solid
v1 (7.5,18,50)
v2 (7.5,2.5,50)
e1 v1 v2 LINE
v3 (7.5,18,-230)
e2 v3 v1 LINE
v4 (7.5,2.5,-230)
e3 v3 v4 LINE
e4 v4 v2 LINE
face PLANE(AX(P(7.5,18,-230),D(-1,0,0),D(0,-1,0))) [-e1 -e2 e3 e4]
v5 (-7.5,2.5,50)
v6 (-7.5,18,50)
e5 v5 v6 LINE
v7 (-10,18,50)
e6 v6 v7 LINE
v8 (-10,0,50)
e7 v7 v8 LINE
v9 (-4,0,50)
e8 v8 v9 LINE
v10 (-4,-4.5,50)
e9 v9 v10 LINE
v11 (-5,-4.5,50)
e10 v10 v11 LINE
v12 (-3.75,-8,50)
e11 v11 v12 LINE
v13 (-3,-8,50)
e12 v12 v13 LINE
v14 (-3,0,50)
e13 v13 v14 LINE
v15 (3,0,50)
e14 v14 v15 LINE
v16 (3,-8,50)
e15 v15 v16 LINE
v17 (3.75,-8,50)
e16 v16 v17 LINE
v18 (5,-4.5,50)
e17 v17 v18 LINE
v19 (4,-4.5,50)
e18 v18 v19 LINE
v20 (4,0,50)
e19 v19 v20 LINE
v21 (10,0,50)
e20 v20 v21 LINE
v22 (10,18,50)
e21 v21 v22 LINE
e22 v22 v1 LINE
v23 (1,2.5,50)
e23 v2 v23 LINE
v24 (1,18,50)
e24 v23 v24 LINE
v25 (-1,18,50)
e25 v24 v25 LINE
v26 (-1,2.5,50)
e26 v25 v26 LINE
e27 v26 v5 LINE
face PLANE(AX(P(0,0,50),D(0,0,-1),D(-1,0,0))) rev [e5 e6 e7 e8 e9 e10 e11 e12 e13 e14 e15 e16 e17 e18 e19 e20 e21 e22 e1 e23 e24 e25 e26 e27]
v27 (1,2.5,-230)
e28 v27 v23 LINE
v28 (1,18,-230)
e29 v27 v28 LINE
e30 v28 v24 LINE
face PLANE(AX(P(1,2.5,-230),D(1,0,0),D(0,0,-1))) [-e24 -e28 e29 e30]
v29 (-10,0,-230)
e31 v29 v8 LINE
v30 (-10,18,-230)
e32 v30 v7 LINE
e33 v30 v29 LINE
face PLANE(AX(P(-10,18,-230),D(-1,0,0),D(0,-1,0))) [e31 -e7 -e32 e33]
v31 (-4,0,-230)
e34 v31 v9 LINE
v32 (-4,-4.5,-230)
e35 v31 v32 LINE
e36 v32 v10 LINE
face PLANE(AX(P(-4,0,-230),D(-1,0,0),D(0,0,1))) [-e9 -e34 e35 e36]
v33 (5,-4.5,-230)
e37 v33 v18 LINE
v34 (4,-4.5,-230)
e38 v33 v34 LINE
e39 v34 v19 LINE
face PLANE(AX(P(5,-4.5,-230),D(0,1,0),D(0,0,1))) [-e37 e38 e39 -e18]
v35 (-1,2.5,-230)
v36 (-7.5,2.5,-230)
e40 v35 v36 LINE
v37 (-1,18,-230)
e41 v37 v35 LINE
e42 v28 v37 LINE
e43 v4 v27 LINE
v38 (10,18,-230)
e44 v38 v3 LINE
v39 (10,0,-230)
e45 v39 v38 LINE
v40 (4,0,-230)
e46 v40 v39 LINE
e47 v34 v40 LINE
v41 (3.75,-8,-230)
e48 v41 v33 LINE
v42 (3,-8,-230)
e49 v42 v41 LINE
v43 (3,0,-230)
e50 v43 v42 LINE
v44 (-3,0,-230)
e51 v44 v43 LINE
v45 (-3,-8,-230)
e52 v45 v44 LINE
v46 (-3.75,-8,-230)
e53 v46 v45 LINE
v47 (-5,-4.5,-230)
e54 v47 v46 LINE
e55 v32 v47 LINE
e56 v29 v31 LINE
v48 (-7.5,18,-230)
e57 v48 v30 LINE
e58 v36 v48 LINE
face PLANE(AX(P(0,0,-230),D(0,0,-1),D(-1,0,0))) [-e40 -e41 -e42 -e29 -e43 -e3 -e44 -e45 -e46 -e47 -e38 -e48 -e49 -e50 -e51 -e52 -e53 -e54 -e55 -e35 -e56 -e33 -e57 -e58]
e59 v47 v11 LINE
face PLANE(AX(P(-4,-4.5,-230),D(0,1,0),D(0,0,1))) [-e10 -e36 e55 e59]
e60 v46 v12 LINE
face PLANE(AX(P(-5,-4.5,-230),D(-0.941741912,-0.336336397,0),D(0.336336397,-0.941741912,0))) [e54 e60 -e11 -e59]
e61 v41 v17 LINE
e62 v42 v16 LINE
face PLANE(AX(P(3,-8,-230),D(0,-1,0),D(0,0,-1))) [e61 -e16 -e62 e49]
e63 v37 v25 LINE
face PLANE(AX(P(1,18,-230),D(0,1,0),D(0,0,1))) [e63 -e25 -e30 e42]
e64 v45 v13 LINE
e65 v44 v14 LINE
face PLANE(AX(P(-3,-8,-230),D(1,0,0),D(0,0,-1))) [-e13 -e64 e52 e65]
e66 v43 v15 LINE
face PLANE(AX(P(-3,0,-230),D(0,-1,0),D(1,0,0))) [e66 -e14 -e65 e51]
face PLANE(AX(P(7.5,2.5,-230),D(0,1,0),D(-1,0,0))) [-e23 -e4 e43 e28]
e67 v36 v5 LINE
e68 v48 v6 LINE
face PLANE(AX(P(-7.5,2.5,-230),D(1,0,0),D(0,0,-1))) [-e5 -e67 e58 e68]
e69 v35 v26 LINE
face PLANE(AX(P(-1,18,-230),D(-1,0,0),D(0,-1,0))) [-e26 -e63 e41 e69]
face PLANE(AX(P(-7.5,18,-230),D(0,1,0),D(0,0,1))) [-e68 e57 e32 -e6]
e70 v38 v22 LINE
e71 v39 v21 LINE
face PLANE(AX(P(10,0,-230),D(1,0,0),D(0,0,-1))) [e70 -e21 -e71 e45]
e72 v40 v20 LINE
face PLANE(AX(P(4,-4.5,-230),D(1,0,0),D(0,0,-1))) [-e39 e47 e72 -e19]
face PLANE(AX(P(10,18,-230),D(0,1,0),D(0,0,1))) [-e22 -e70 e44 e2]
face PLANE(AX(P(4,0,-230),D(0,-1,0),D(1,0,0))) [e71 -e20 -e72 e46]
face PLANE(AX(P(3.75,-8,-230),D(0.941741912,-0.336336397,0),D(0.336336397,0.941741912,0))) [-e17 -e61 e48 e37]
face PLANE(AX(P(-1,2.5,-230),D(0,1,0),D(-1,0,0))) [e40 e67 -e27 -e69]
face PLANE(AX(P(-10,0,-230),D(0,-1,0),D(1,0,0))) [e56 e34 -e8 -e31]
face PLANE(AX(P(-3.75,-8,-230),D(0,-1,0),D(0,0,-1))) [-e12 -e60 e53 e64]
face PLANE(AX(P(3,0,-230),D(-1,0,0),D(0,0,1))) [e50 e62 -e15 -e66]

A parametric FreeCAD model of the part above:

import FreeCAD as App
import Part
import Sketcher

doc = App.newDocument("Part")
params = doc.addObject("Spreadsheet::Sheet", "Params")
for row, (alias, value) in enumerate([
    ("sketch1_width", "6 mm"),
    ("sketch1_width2", "1 mm"),
    ("sketch1_width3", "2 mm"),
    ("sketch1_height", "18 mm"),
    ("sketch1_height2", "8 mm"),
    ("pad1_length", "280 mm"),
], start=1):
    params.set(f"A{row}", alias)
    params.set(f"B{row}", "=" + value)
    params.setAlias(f"B{row}", alias)

body = doc.addObject("PartDesign::Body", "Body")

# Sketch on XY plane
sketch1 = doc.addObject("Sketcher::SketchObject", "Sketch")
body.addObject(sketch1)
sketch1.AttachmentSupport = (doc.XY_Plane, [""])
sketch1.MapMode = "FlatFace"
sketch1.AttachmentOffset = App.Placement(App.Vector(0, 0, 50), App.Rotation())
sketch1.addGeometry([
    Part.LineSegment(App.Vector(-1, 2.5, 0), App.Vector(-7.5, 2.5, 0)),  # 0
    Part.LineSegment(App.Vector(-7.5, 2.5, 0), App.Vector(-7.5, 18, 0)),  # 1
    Part.LineSegment(App.Vector(-7.5, 18, 0), App.Vector(-10, 18, 0)),  # 2
    Part.LineSegment(App.Vector(-10, 18, 0), App.Vector(-10, 0, 0)),  # 3
    Part.LineSegment(App.Vector(-10, 0, 0), App.Vector(-4, 0, 0)),  # 4
    Part.LineSegment(App.Vector(-4, 0, 0), App.Vector(-4, -4.5, 0)),  # 5
    Part.LineSegment(App.Vector(-4, -4.5, 0), App.Vector(-5, -4.5, 0)),  # 6
    Part.LineSegment(App.Vector(-5, -4.5, 0), App.Vector(-3.75, -8, 0)),  # 7
    Part.LineSegment(App.Vector(-3.75, -8, 0), App.Vector(-3, -8, 0)),  # 8
    Part.LineSegment(App.Vector(-3, -8, 0), App.Vector(-3, 0, 0)),  # 9
    Part.LineSegment(App.Vector(-3, 0, 0), App.Vector(3, 0, 0)),  # 10
    Part.LineSegment(App.Vector(3, 0, 0), App.Vector(3, -8, 0)),  # 11
    Part.LineSegment(App.Vector(3, -8, 0), App.Vector(3.75, -8, 0)),  # 12
    Part.LineSegment(App.Vector(3.75, -8, 0), App.Vector(5, -4.5, 0)),  # 13
    Part.LineSegment(App.Vector(5, -4.5, 0), App.Vector(4, -4.5, 0)),  # 14
    Part.LineSegment(App.Vector(4, -4.5, 0), App.Vector(4, 0, 0)),  # 15
    Part.LineSegment(App.Vector(4, 0, 0), App.Vector(10, 0, 0)),  # 16
    Part.LineSegment(App.Vector(10, 0, 0), App.Vector(10, 18, 0)),  # 17
    Part.LineSegment(App.Vector(10, 18, 0), App.Vector(7.5, 18, 0)),  # 18
    Part.LineSegment(App.Vector(7.5, 18, 0), App.Vector(7.5, 2.5, 0)),  # 19
    Part.LineSegment(App.Vector(7.5, 2.5, 0), App.Vector(1, 2.5, 0)),  # 20
    Part.LineSegment(App.Vector(1, 2.5, 0), App.Vector(1, 18, 0)),  # 21
    Part.LineSegment(App.Vector(1, 18, 0), App.Vector(-1, 18, 0)),  # 22
    Part.LineSegment(App.Vector(-1, 18, 0), App.Vector(-1, 2.5, 0)),  # 23
], False)
sketch1.addConstraint([
    Sketcher.Constraint("Coincident", 0, 2, 1, 1),
    Sketcher.Constraint("Coincident", 1, 2, 2, 1),
    Sketcher.Constraint("Coincident", 2, 2, 3, 1),
    Sketcher.Constraint("Coincident", 3, 2, 4, 1),
    Sketcher.Constraint("Coincident", 4, 2, 5, 1),
    Sketcher.Constraint("Coincident", 5, 2, 6, 1),
    Sketcher.Constraint("Coincident", 6, 2, 7, 1),
    Sketcher.Constraint("Coincident", 7, 2, 8, 1),
    Sketcher.Constraint("Coincident", 8, 2, 9, 1),
    Sketcher.Constraint("Coincident", 9, 2, 10, 1),
    Sketcher.Constraint("Coincident", 10, 2, 11, 1),
    Sketcher.Constraint("Coincident", 11, 2, 12, 1),
    Sketcher.Constraint("Coincident", 12, 2, 13, 1),
    Sketcher.Constraint("Coincident", 13, 2, 14, 1),
    Sketcher.Constraint("Coincident", 14, 2, 15, 1),
    Sketcher.Constraint("Coincident", 15, 2, 16, 1),
    Sketcher.Constraint("Coincident", 16, 2, 17, 1),
    Sketcher.Constraint("Coincident", 17, 2, 18, 1),
    Sketcher.Constraint("Coincident", 18, 2, 19, 1),
    Sketcher.Constraint("Coincident", 19, 2, 20, 1),
    Sketcher.Constraint("Coincident", 20, 2, 21, 1),
    Sketcher.Constraint("Coincident", 21, 2, 22, 1),
    Sketcher.Constraint("Coincident", 22, 2, 23, 1),
    Sketcher.Constraint("Coincident", 23, 2, 0, 1),
    Sketcher.Constraint("Horizontal", 0),
    Sketcher.Constraint("Vertical", 1),
    Sketcher.Constraint("Horizontal", 2),
    Sketcher.Constraint("Vertical", 3),
    Sketcher.Constraint("Horizontal", 4),
    Sketcher.Constraint("Vertical", 5),
    Sketcher.Constraint("Horizontal", 6),
    Sketcher.Constraint("Horizontal", 8),
    Sketcher.Constraint("Vertical", 9),
    Sketcher.Constraint("Horizontal", 10),
    Sketcher.Constraint("Vertical", 11),
    Sketcher.Constraint("Horizontal", 12),
    Sketcher.Constraint("Horizontal", 14),
    Sketcher.Constraint("Vertical", 15),
    Sketcher.Constraint("Horizontal", 16),
    Sketcher.Constraint("Vertical", 17),
    Sketcher.Constraint("Horizontal", 18),
    Sketcher.Constraint("Vertical", 19),
    Sketcher.Constraint("Horizontal", 20),
    Sketcher.Constraint("Vertical", 21),
    Sketcher.Constraint("Horizontal", 22),
    Sketcher.Constraint("Vertical", 23),
    Sketcher.Constraint("Symmetric", 9, 2, 10, 2, -1, 1),
    Sketcher.Constraint("Symmetric", 4, 2, 15, 2, -1, 1),
    Sketcher.Constraint("Symmetric", 7, 2, 12, 2, -2),
    Sketcher.Constraint("Symmetric", 6, 2, 13, 2, -2),
    Sketcher.Constraint("Symmetric", 3, 2, 16, 2, -2),
    Sketcher.Constraint("Symmetric", 1, 2, 18, 2, -2),
    Sketcher.Constraint("Symmetric", 20, 2, 23, 2, -2),
    Sketcher.Constraint("Horizontal", 18, 2, 21, 2),
    Sketcher.Constraint("Equal", 4, 10),
    Sketcher.Constraint("DistanceX", 4, 1, 4, 2, 6.0),
    Sketcher.Constraint("DistanceX", 6, 2, 6, 1, 1.0),
    Sketcher.Constraint("DistanceX", 22, 2, 22, 1, 2.0),
    Sketcher.Constraint("DistanceY", 3, 2, 3, 1, 18.0),
    Sketcher.Constraint("DistanceY", 9, 1, 9, 2, 8.0),
    Sketcher.Constraint("DistanceX", 0, 2, 0, 1, 6.5),
    Sketcher.Constraint("DistanceX", 2, 2, 2, 1, 2.5),
    Sketcher.Constraint("DistanceY", 1, 1, 1, 2, 15.5),
    Sketcher.Constraint("DistanceY", 5, 2, 5, 1, 4.5),
    Sketcher.Constraint("DistanceX", 8, 1, 8, 2, 0.75),
])
sketch1.setExpression("Constraints[55]", "Params.sketch1_width")
sketch1.setExpression("Constraints[56]", "Params.sketch1_width2")
sketch1.setExpression("Constraints[57]", "Params.sketch1_width3")
sketch1.setExpression("Constraints[58]", "Params.sketch1_height")
sketch1.setExpression("Constraints[59]", "Params.sketch1_height2")
pad1 = doc.addObject("PartDesign::Pad", "Pad")
body.addObject(pad1)
pad1.Profile = sketch1
pad1.setExpression("Length", "Params.pad1_length")
pad1.Reversed = True

doc.recompute()
